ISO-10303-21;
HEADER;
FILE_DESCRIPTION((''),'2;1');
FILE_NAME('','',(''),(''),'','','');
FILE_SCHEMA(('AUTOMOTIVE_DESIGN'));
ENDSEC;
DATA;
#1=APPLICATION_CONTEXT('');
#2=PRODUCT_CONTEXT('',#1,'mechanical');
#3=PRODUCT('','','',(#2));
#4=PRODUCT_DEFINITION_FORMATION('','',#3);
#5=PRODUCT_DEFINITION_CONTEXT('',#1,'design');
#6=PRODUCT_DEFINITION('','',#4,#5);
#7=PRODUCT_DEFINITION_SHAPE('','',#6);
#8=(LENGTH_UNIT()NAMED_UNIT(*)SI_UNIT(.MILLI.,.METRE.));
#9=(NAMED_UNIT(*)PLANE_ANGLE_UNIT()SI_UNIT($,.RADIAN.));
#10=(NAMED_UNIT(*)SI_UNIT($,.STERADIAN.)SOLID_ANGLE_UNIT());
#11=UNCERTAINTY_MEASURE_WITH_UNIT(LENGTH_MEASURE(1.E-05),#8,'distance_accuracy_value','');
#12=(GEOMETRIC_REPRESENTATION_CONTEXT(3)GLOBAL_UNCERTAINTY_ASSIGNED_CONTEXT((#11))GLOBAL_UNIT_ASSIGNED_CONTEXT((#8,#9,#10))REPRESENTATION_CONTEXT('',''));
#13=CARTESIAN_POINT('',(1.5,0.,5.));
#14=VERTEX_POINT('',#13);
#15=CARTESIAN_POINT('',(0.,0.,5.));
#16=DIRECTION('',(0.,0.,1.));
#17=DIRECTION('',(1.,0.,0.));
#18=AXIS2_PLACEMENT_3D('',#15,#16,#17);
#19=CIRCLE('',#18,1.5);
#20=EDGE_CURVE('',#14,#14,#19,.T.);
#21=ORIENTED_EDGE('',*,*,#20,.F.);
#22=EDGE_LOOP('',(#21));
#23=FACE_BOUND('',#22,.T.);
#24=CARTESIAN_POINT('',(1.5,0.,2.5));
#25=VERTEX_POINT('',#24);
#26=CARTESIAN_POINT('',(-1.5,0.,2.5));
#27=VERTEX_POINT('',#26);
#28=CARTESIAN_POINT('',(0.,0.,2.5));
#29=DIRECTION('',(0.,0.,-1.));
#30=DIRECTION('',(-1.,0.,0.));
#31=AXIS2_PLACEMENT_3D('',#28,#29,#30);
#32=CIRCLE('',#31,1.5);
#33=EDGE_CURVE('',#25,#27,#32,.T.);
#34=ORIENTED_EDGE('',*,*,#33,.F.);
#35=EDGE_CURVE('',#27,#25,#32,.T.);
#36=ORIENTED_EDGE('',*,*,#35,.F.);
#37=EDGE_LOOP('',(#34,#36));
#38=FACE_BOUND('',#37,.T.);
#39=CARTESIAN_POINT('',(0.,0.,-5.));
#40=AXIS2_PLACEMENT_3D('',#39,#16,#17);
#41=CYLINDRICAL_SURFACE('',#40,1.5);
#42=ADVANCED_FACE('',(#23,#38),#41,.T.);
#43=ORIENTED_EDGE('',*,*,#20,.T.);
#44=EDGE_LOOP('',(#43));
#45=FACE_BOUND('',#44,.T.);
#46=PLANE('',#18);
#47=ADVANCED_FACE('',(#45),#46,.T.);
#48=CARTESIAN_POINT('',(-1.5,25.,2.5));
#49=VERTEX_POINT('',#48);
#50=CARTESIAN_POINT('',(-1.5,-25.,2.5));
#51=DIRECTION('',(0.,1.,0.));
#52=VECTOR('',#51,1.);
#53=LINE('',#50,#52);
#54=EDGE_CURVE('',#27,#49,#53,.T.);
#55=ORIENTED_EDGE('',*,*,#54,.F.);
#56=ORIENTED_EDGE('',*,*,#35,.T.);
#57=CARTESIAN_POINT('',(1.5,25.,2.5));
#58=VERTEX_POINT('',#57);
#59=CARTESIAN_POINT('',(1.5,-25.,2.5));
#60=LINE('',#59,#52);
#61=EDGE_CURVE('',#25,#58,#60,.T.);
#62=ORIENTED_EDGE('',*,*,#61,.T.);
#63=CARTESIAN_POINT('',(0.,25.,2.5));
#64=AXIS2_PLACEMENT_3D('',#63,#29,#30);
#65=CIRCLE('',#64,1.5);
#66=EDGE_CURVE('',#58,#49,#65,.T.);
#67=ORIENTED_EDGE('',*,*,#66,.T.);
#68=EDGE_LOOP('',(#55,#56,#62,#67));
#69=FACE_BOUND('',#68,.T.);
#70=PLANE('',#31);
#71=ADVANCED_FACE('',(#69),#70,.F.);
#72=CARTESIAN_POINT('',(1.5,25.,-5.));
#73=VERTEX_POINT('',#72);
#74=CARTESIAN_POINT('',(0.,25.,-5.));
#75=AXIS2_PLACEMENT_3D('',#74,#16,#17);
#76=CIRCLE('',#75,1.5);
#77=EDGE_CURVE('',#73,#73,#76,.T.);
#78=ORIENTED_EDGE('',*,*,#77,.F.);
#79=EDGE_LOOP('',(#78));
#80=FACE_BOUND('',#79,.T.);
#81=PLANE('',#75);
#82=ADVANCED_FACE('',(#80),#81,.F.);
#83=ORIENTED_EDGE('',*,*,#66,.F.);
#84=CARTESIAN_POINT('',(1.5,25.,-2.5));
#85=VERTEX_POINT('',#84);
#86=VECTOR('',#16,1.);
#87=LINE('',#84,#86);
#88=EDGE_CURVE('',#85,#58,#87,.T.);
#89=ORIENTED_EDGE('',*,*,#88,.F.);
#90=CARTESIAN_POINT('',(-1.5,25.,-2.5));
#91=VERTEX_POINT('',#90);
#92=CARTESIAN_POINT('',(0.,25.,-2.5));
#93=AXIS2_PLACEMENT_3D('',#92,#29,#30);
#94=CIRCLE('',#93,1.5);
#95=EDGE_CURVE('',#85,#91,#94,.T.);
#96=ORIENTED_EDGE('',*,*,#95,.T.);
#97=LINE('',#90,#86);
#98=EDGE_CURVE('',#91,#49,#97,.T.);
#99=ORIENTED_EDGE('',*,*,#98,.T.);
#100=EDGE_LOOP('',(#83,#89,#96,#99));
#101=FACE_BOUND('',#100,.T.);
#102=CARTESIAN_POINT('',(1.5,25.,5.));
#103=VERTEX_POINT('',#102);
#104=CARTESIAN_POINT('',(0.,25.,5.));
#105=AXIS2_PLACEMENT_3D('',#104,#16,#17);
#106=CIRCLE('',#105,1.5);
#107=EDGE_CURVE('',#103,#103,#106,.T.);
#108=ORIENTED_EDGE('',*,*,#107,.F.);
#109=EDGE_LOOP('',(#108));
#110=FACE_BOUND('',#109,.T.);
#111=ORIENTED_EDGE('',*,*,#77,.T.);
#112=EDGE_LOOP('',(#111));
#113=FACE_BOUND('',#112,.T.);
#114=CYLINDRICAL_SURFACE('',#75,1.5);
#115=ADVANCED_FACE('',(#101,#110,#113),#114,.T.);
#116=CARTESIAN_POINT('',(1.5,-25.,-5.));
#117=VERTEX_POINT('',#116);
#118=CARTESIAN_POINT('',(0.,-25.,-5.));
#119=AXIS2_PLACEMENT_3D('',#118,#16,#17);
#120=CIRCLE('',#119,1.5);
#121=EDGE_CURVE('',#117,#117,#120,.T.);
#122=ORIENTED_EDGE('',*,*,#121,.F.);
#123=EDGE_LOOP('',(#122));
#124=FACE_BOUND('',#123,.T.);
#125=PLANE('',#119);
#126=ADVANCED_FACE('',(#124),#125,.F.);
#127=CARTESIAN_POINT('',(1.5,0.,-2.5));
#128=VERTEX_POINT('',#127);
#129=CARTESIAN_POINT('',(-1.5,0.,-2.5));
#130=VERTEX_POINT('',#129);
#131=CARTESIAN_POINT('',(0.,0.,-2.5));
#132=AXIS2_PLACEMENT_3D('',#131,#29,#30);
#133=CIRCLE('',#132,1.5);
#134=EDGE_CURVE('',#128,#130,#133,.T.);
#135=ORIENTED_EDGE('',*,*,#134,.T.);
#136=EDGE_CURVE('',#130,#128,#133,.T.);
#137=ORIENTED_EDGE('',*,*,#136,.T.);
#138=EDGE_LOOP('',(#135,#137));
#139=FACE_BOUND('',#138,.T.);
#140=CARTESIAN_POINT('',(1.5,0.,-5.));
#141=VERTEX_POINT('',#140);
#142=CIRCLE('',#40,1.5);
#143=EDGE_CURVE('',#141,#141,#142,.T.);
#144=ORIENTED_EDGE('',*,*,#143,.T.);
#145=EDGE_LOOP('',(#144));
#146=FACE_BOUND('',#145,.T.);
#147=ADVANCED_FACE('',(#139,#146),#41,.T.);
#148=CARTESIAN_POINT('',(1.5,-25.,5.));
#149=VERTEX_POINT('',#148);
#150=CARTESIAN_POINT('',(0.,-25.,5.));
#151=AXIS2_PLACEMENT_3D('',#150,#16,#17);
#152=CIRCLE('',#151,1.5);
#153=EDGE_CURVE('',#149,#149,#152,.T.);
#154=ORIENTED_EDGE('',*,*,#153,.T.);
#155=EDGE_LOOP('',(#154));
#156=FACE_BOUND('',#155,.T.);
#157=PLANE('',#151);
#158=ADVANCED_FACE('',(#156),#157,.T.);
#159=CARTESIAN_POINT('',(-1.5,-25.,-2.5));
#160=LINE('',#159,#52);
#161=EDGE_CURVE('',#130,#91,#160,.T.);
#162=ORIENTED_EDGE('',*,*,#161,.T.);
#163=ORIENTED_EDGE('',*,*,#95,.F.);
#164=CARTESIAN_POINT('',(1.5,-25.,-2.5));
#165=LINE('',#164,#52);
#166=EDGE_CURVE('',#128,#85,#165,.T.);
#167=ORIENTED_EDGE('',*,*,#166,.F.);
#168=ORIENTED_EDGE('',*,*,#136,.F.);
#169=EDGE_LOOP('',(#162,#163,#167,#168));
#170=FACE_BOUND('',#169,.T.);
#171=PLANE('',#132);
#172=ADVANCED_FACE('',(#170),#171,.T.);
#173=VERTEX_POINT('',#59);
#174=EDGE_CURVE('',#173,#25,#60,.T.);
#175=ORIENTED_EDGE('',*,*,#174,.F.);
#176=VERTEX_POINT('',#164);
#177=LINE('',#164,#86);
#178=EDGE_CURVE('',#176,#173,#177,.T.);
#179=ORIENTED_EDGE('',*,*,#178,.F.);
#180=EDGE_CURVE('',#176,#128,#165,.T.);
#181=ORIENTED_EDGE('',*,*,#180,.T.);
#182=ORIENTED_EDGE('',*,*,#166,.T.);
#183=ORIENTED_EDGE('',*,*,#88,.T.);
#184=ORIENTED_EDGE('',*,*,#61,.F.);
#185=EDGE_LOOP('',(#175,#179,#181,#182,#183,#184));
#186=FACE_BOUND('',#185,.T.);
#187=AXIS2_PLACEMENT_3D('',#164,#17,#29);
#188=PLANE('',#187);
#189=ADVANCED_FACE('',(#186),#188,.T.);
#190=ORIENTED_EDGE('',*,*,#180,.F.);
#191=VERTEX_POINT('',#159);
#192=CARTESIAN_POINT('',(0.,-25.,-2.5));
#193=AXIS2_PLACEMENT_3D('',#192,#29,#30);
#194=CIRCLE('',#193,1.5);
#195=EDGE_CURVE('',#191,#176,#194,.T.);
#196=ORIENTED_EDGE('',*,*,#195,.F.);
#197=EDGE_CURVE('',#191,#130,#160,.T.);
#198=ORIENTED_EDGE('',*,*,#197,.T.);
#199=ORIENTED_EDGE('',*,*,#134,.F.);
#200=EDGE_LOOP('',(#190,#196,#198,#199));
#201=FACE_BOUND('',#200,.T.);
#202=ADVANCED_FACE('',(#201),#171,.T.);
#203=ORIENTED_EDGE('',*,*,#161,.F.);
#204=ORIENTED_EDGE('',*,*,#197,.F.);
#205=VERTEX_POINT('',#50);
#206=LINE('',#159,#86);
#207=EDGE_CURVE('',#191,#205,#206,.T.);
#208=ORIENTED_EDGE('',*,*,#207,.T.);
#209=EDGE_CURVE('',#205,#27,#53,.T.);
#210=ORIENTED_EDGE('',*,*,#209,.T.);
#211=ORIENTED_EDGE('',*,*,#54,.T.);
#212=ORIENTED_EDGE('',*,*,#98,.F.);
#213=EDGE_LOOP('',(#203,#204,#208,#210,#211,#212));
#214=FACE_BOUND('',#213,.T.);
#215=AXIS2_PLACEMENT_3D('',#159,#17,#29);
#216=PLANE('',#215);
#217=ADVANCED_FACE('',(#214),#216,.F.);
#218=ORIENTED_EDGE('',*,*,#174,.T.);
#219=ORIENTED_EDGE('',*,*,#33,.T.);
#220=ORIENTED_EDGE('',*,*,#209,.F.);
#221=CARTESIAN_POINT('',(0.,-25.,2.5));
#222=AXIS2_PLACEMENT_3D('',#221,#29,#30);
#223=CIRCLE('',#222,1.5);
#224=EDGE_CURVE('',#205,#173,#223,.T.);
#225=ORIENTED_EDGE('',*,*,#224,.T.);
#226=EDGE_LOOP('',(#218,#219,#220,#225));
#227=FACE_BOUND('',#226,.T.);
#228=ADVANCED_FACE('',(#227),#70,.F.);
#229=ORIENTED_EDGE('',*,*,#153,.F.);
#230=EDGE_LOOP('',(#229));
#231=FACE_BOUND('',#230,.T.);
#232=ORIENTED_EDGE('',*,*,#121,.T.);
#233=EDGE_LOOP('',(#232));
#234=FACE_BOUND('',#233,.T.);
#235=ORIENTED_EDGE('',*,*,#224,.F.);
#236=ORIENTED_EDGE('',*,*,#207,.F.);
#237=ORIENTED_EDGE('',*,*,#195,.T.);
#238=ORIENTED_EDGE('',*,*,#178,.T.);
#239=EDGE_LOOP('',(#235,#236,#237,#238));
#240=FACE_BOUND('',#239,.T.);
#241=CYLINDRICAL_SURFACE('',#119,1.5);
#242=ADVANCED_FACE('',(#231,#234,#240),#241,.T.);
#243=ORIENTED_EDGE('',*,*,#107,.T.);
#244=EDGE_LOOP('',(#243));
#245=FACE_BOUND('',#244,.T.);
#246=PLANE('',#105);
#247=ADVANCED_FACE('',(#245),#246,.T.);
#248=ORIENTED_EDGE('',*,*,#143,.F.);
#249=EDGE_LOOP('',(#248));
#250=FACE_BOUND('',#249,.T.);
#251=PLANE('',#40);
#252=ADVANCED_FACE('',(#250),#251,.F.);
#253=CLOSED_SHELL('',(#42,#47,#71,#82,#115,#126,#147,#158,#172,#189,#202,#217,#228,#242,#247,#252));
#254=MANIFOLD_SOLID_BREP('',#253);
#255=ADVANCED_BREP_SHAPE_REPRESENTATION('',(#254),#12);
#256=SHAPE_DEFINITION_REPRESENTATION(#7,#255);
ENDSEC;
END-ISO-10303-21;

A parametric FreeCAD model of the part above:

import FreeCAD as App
import Part
import Sketcher
from FreeCAD import Vector

doc = App.newDocument("Part")
body = doc.addObject("PartDesign::Body", "Body")

# Sketch on XY plane
sketch1 = body.newObject("Sketcher::SketchObject", "Sketch")
sketch1.AttachmentSupport = (doc.getObject("XY_Plane"), [""])
sketch1.MapMode = "FlatFace"
sketch1.addGeometry([
    Part.LineSegment(Vector(-1.5, 25, 0), Vector(-1.5, -25, 0)),
    Part.LineSegment(Vector(-1.5, -25, 0), Vector(1.5, -25, 0)),
    Part.LineSegment(Vector(1.5, -25, 0), Vector(1.5, 25, 0)),
    Part.LineSegment(Vector(1.5, 25, 0), Vector(-1.5, 25, 0)),
], False)
sketch1.addConstraint([
    Sketcher.Constraint("Coincident", 0, 2, 1, 1),
    Sketcher.Constraint("Coincident", 1, 2, 2, 1),
    Sketcher.Constraint("Coincident", 2, 2, 3, 1),
    Sketcher.Constraint("Coincident", 3, 2, 0, 1),
    Sketcher.Constraint("Vertical", 0),
    Sketcher.Constraint("Horizontal", 1),
    Sketcher.Constraint("Vertical", 2),
    Sketcher.Constraint("Horizontal", 3),
    Sketcher.Constraint("Symmetric", 0, 2, 2, 2, -1, 1),
    Sketcher.Constraint("DistanceX", 1, 1, 1, 2, 3.0),
    Sketcher.Constraint("DistanceY", 0, 2, 0, 1, 50.0),
])
pad1 = body.newObject("PartDesign::Pad", "Pad")
pad1.Profile = sketch1
pad1.Type = "TwoLengths"
pad1.Length = 2.5
pad1.Length2 = 2.5

# Sketch on XY plane
sketch2 = body.newObject("Sketcher::SketchObject", "Sketch001")
sketch2.AttachmentSupport = (doc.getObject("XY_Plane"), [""])
sketch2.MapMode = "FlatFace"
sketch2.addGeometry([
    Part.Circle(Vector(0, 25, 0), Vector(0, 0, 1), 1.5),
    Part.Circle(Vector(0, -25, 0), Vector(0, 0, 1), 1.5),
    Part.Circle(Vector(0, 0, 0), Vector(0, 0, 1), 1.5),
], False)
sketch2.addConstraint([
    Sketcher.Constraint("Coincident", 2, 3, -1, 1),
    Sketcher.Constraint("Equal", 0, 1),
    Sketcher.Constraint("Equal", 1, 2),
    Sketcher.Constraint("Symmetric", 0, 3, 1, 3, -1, 1),
    Sketcher.Constraint("PointOnObject", 0, 3, -2),
    Sketcher.Constraint("Diameter", 0, 3.0),
    Sketcher.Constraint("DistanceY", -1, 1, 0, 3, 25.0),
])
pad2 = body.newObject("PartDesign::Pad", "Pad001")
pad2.Profile = sketch2
pad2.Type = "TwoLengths"
pad2.Length = 5
pad2.Length2 = 5

doc.recompute()
